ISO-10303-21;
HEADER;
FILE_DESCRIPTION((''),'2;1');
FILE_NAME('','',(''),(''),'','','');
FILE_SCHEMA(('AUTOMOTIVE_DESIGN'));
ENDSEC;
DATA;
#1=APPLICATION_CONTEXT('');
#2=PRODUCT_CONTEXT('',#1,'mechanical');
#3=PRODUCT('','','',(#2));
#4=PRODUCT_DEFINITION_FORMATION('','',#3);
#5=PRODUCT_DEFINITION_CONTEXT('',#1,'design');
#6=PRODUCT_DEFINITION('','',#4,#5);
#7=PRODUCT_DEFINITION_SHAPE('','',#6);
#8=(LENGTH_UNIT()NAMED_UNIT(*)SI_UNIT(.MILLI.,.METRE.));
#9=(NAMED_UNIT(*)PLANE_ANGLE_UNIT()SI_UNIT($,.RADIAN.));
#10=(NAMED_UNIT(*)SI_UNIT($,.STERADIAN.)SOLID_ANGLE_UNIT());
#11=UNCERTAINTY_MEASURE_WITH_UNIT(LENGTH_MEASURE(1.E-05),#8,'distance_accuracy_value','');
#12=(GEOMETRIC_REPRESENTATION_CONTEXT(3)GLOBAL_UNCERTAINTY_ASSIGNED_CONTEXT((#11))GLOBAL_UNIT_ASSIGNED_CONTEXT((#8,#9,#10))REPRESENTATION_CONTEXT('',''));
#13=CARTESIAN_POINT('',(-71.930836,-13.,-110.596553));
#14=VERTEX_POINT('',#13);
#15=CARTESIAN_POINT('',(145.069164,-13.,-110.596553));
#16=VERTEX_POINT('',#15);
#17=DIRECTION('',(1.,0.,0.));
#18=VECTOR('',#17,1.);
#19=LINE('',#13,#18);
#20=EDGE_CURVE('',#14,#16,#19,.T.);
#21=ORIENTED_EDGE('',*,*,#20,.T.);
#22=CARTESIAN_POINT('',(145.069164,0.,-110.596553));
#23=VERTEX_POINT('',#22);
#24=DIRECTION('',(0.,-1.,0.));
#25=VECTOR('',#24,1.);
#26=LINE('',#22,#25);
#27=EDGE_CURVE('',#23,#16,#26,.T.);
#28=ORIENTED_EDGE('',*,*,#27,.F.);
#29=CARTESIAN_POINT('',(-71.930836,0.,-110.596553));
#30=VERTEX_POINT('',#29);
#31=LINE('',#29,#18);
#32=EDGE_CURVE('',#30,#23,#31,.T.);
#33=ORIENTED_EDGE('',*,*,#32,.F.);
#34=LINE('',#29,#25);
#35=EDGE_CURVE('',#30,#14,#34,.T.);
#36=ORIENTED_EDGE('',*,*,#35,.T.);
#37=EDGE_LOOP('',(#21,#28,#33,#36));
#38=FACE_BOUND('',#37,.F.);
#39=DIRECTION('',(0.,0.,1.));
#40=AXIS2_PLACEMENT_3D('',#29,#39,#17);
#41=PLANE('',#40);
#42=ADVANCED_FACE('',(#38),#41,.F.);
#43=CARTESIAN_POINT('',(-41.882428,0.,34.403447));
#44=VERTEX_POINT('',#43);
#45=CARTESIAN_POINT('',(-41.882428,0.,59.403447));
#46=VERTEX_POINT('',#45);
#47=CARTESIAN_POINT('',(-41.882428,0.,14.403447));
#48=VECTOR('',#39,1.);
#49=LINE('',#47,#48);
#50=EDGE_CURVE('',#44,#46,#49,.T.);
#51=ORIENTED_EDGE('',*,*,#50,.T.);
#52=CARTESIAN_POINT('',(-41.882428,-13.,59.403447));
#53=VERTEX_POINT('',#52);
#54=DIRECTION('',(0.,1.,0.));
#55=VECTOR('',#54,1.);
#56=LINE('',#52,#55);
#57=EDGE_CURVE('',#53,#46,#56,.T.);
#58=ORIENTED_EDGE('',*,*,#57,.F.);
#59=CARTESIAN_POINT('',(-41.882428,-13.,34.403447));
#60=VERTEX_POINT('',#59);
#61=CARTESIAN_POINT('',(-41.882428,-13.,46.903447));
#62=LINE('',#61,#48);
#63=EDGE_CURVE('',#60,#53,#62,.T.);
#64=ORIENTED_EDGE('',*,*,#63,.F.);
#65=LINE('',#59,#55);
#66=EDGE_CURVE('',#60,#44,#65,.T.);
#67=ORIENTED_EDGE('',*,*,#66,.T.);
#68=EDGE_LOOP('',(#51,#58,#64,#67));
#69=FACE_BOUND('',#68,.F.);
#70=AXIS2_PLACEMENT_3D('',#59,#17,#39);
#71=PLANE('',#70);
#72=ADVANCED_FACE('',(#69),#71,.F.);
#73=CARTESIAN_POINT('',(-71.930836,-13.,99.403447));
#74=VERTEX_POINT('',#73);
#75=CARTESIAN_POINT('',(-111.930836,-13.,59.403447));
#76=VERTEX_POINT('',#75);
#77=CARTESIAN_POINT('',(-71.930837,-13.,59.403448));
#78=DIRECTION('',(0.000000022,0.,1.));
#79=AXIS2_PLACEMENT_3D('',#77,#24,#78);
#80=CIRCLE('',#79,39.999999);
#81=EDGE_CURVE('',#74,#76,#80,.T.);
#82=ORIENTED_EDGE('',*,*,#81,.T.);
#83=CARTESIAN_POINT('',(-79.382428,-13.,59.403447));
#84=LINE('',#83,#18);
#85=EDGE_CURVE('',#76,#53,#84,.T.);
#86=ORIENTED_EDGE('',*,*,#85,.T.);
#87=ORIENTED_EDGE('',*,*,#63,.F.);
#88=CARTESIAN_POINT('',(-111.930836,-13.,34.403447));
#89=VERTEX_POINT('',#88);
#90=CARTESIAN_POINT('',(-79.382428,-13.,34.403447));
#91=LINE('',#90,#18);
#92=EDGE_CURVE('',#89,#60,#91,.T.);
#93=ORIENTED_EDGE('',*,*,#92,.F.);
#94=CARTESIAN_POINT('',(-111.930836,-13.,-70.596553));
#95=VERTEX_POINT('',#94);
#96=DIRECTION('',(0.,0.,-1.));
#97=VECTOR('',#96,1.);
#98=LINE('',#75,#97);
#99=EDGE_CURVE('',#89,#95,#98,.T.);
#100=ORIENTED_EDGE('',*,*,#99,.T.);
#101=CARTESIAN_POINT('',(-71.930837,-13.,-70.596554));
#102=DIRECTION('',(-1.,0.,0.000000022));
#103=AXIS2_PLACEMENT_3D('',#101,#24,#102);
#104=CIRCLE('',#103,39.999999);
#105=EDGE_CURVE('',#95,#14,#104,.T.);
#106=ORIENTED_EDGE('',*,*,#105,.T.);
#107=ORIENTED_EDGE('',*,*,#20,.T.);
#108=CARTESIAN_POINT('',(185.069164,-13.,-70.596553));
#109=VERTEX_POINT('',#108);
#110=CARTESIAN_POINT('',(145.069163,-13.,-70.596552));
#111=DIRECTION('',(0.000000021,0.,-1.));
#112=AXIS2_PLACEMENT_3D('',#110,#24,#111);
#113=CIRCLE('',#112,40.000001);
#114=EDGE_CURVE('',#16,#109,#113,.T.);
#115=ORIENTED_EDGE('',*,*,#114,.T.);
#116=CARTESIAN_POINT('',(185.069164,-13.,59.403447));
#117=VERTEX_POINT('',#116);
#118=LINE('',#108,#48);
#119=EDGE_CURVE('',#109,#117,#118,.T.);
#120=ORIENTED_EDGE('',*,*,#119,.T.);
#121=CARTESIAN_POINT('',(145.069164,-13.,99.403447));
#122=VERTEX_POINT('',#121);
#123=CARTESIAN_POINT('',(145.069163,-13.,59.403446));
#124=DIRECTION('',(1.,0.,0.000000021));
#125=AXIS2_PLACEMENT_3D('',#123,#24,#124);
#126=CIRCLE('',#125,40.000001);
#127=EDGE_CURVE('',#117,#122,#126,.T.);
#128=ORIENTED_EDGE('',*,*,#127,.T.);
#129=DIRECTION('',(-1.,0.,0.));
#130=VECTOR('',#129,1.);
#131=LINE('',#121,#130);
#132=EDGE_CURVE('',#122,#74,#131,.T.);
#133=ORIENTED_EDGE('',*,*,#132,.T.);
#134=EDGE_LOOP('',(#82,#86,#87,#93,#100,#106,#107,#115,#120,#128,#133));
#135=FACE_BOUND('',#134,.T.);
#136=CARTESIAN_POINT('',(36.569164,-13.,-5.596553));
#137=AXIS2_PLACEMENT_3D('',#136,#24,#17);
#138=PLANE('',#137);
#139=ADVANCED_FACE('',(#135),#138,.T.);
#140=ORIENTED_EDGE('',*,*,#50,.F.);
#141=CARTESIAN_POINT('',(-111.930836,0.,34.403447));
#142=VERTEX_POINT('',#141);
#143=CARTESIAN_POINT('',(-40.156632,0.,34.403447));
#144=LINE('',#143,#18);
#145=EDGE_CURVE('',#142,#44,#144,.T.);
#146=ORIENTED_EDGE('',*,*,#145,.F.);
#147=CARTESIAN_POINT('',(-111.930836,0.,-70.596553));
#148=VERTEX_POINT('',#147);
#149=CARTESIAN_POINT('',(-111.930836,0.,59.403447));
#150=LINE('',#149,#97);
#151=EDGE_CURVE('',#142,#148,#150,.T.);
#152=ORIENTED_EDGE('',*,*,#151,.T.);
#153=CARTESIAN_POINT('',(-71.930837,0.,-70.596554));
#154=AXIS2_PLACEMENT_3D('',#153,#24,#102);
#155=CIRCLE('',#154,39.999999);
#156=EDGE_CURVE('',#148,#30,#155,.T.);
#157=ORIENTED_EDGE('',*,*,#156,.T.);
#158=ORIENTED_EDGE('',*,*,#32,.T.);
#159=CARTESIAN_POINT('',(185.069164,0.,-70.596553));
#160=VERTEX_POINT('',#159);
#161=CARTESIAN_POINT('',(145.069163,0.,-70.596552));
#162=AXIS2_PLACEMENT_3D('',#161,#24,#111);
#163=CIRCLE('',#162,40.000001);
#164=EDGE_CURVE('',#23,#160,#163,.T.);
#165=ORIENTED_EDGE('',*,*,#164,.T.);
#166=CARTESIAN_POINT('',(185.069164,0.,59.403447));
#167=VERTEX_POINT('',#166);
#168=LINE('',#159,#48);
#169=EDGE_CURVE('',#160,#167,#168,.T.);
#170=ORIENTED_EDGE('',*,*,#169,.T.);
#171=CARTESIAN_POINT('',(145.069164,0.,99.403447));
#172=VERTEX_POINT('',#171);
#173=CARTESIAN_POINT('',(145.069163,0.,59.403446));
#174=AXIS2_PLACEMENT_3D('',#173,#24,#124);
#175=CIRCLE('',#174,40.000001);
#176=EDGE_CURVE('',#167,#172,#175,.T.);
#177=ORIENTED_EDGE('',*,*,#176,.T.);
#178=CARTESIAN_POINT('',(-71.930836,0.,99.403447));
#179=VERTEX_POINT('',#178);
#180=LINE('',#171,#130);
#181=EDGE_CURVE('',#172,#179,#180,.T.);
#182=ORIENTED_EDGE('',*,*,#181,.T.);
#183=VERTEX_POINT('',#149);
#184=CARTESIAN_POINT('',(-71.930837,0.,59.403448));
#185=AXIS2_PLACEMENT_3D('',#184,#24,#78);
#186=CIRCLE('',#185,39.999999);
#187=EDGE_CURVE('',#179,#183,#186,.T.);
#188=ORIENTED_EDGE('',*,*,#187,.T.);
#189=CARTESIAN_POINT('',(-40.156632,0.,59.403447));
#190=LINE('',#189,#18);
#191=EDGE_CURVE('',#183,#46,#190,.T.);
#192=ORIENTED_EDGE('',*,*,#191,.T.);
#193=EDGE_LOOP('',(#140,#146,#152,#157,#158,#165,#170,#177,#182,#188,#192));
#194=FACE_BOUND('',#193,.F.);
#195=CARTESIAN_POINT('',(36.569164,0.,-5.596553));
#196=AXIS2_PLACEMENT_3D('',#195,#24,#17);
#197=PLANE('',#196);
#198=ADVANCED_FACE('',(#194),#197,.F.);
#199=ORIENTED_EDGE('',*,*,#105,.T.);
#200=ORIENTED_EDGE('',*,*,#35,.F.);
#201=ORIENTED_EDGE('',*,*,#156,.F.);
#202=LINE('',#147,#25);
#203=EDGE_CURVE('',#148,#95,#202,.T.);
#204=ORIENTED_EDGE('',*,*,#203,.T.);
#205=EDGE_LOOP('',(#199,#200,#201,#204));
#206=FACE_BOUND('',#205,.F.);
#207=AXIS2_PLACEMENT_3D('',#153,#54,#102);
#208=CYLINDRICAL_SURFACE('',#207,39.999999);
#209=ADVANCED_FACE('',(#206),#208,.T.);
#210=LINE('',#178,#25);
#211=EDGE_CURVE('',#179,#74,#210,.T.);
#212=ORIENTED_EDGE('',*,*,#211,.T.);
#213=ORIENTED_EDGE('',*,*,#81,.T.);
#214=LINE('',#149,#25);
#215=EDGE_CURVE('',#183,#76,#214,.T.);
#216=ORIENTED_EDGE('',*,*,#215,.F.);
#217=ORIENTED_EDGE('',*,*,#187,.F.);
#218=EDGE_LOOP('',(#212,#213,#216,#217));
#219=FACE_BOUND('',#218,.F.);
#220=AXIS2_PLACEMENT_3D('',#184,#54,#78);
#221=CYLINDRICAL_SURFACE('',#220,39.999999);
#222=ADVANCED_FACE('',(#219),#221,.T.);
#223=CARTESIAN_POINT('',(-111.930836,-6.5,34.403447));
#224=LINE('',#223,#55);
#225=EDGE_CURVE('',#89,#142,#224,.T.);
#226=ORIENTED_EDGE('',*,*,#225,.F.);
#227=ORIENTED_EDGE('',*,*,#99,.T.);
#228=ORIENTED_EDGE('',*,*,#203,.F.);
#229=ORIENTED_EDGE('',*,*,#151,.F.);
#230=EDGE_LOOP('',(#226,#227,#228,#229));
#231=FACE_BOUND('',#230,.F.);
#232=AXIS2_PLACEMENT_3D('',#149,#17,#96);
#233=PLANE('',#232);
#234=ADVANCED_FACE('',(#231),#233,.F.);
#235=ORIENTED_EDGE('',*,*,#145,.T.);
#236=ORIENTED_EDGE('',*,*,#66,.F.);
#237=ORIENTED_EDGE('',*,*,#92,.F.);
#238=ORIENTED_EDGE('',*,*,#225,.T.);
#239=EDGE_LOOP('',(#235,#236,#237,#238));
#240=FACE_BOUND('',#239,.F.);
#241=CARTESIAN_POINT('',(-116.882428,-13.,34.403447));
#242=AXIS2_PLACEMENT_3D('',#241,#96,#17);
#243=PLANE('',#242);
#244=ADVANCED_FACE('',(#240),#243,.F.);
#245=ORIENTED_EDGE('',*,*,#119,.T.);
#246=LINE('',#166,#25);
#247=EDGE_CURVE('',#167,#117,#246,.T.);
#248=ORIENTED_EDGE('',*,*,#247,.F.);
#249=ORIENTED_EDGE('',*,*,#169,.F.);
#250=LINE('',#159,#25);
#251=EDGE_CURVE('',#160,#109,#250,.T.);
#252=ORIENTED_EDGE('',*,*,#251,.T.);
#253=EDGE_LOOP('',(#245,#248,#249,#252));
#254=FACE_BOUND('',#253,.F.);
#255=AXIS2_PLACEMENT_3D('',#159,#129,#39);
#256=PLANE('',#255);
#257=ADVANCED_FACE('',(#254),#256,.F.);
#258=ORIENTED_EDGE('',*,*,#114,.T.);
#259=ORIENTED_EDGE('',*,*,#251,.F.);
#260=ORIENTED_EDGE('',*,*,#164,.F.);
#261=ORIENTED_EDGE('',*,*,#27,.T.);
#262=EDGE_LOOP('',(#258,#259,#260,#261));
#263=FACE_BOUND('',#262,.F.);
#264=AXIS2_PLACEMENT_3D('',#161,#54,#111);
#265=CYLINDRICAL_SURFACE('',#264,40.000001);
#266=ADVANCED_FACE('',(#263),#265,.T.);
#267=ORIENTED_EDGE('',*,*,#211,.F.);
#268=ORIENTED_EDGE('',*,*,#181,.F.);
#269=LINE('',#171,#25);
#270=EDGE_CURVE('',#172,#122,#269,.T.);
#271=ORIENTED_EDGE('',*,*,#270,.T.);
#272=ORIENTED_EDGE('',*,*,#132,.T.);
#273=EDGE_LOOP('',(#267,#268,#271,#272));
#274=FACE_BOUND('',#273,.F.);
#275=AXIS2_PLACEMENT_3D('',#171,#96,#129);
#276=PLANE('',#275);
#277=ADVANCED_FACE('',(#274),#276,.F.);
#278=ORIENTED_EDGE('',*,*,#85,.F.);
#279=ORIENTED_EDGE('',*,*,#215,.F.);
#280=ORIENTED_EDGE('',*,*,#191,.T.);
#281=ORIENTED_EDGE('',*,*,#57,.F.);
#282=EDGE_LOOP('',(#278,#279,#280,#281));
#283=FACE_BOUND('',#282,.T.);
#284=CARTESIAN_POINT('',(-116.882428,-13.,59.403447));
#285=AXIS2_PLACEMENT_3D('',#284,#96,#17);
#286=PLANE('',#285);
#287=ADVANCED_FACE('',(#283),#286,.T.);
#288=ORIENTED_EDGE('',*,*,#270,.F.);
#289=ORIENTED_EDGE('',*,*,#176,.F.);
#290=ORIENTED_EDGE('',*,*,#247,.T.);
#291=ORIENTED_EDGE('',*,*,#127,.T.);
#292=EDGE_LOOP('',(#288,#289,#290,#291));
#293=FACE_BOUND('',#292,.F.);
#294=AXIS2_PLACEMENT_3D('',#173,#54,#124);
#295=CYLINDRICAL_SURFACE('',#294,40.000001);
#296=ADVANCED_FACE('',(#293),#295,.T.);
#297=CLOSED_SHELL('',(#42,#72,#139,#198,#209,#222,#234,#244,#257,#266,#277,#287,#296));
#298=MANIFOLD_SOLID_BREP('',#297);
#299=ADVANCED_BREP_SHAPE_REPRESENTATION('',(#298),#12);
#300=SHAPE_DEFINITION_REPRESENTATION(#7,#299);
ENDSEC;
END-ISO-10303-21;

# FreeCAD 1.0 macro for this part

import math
import FreeCAD as App
import Part
import Sketcher


def add_polygon(sketch, points):
    """Adds a closed chain of lines whose ends are joined by coincident constraints."""
    first, n = sketch.GeometryCount, len(points)
    for a, b in zip(points, points[1:] + points[:1]):
        sketch.addGeometry(Part.LineSegment(App.Vector(*a, 0), App.Vector(*b, 0)), False)
    for i in range(n):
        sketch.addConstraint(Sketcher.Constraint("Coincident", first + i, 2, first + (i + 1) % n, 1))

doc = App.newDocument("Part")
body = doc.addObject("PartDesign::Body", "Body")

sketch1 = doc.addObject("Sketcher::SketchObject", "Sketch")
body.addObject(sketch1)
sketch1.AttachmentSupport = (doc.XZ_Plane, [""])
sketch1.MapMode = "FlatFace"
sketch1.addGeometry([
    Part.LineSegment(App.Vector(145, 99, 0), App.Vector(-72, 99, 0)),
    Part.ArcOfCircle(Part.Circle(App.Vector(-72, 59, 0), App.Vector(0, 0, 1), 40), math.radians(90), math.radians(180)),
    Part.LineSegment(App.Vector(-112, 59, 0), App.Vector(-112, -71, 0)),
    Part.ArcOfCircle(Part.Circle(App.Vector(-72, -71, 0), App.Vector(0, 0, 1), 40), math.radians(180), math.radians(270)),
    Part.LineSegment(App.Vector(-72, -111, 0), App.Vector(145, -111, 0)),
    Part.ArcOfCircle(Part.Circle(App.Vector(145, -71, 0), App.Vector(0, 0, 1), 40), math.radians(-90), math.radians(0)),
    Part.LineSegment(App.Vector(185, -71, 0), App.Vector(185, 59, 0)),
    Part.ArcOfCircle(Part.Circle(App.Vector(145, 59, 0), App.Vector(0, 0, 1), 40), math.radians(0), math.radians(90)),
], False)
sketch1.addConstraint([
    Sketcher.Constraint("Tangent", 0, 2, 1, 1),
    Sketcher.Constraint("Tangent", 1, 2, 2, 1),
    Sketcher.Constraint("Tangent", 2, 2, 3, 1),
    Sketcher.Constraint("Tangent", 3, 2, 4, 1),
    Sketcher.Constraint("Tangent", 4, 2, 5, 1),
    Sketcher.Constraint("Tangent", 5, 2, 6, 1),
    Sketcher.Constraint("Tangent", 6, 2, 7, 1),
    Sketcher.Constraint("Tangent", 7, 2, 0, 1),
    Sketcher.Constraint("Horizontal", 0),
    Sketcher.Constraint("Vertical", 2),
    Sketcher.Constraint("Horizontal", 4),
    Sketcher.Constraint("Vertical", 6),
    Sketcher.Constraint("Equal", 1, 3),
    Sketcher.Constraint("Equal", 3, 5),
    Sketcher.Constraint("Equal", 5, 7),
    Sketcher.Constraint("Radius", 1, 39.999999),
    Sketcher.Constraint("DistanceX", 0, 2, 0, 1, 217.0),
    Sketcher.Constraint("DistanceY", 2, 2, 2, 1, 130.0),
    Sketcher.Constraint("DistanceX", 1, 3, -1, 1, 71.930837),
    Sketcher.Constraint("DistanceY", -1, 1, 1, 3, 59.403448),
])
pad1 = doc.addObject("PartDesign::Pad", "Pad")
body.addObject(pad1)
pad1.Profile = sketch1
pad1.Length = 13

sketch2 = doc.addObject("Sketcher::SketchObject", "Sketch001")
body.addObject(sketch2)
sketch2.AttachmentSupport = (doc.XZ_Plane, [""])
sketch2.MapMode = "FlatFace"
sketch2.AttachmentOffset = App.Placement(App.Vector(0, 0, 13), App.Rotation())
add_polygon(sketch2, [(-117, 59), (-117, 34), (-42, 34), (-42, 59)])
sketch2.addConstraint([
    Sketcher.Constraint("Vertical", 0),
    Sketcher.Constraint("Horizontal", 1),
    Sketcher.Constraint("Vertical", 2),
    Sketcher.Constraint("Horizontal", 3),
    Sketcher.Constraint("DistanceX", 1, 1, 1, 2, 75.0),
    Sketcher.Constraint("DistanceY", 0, 2, 0, 1, 25.0),
    Sketcher.Constraint("DistanceX", 0, 2, -1, 1, 116.882428),
    Sketcher.Constraint("DistanceY", -1, 1, 0, 2, 34.403447),
])
pocket1 = doc.addObject("PartDesign::Pocket", "Pocket")
body.addObject(pocket1)
pocket1.Profile = sketch2
pocket1.Length = 25

doc.recompute()
